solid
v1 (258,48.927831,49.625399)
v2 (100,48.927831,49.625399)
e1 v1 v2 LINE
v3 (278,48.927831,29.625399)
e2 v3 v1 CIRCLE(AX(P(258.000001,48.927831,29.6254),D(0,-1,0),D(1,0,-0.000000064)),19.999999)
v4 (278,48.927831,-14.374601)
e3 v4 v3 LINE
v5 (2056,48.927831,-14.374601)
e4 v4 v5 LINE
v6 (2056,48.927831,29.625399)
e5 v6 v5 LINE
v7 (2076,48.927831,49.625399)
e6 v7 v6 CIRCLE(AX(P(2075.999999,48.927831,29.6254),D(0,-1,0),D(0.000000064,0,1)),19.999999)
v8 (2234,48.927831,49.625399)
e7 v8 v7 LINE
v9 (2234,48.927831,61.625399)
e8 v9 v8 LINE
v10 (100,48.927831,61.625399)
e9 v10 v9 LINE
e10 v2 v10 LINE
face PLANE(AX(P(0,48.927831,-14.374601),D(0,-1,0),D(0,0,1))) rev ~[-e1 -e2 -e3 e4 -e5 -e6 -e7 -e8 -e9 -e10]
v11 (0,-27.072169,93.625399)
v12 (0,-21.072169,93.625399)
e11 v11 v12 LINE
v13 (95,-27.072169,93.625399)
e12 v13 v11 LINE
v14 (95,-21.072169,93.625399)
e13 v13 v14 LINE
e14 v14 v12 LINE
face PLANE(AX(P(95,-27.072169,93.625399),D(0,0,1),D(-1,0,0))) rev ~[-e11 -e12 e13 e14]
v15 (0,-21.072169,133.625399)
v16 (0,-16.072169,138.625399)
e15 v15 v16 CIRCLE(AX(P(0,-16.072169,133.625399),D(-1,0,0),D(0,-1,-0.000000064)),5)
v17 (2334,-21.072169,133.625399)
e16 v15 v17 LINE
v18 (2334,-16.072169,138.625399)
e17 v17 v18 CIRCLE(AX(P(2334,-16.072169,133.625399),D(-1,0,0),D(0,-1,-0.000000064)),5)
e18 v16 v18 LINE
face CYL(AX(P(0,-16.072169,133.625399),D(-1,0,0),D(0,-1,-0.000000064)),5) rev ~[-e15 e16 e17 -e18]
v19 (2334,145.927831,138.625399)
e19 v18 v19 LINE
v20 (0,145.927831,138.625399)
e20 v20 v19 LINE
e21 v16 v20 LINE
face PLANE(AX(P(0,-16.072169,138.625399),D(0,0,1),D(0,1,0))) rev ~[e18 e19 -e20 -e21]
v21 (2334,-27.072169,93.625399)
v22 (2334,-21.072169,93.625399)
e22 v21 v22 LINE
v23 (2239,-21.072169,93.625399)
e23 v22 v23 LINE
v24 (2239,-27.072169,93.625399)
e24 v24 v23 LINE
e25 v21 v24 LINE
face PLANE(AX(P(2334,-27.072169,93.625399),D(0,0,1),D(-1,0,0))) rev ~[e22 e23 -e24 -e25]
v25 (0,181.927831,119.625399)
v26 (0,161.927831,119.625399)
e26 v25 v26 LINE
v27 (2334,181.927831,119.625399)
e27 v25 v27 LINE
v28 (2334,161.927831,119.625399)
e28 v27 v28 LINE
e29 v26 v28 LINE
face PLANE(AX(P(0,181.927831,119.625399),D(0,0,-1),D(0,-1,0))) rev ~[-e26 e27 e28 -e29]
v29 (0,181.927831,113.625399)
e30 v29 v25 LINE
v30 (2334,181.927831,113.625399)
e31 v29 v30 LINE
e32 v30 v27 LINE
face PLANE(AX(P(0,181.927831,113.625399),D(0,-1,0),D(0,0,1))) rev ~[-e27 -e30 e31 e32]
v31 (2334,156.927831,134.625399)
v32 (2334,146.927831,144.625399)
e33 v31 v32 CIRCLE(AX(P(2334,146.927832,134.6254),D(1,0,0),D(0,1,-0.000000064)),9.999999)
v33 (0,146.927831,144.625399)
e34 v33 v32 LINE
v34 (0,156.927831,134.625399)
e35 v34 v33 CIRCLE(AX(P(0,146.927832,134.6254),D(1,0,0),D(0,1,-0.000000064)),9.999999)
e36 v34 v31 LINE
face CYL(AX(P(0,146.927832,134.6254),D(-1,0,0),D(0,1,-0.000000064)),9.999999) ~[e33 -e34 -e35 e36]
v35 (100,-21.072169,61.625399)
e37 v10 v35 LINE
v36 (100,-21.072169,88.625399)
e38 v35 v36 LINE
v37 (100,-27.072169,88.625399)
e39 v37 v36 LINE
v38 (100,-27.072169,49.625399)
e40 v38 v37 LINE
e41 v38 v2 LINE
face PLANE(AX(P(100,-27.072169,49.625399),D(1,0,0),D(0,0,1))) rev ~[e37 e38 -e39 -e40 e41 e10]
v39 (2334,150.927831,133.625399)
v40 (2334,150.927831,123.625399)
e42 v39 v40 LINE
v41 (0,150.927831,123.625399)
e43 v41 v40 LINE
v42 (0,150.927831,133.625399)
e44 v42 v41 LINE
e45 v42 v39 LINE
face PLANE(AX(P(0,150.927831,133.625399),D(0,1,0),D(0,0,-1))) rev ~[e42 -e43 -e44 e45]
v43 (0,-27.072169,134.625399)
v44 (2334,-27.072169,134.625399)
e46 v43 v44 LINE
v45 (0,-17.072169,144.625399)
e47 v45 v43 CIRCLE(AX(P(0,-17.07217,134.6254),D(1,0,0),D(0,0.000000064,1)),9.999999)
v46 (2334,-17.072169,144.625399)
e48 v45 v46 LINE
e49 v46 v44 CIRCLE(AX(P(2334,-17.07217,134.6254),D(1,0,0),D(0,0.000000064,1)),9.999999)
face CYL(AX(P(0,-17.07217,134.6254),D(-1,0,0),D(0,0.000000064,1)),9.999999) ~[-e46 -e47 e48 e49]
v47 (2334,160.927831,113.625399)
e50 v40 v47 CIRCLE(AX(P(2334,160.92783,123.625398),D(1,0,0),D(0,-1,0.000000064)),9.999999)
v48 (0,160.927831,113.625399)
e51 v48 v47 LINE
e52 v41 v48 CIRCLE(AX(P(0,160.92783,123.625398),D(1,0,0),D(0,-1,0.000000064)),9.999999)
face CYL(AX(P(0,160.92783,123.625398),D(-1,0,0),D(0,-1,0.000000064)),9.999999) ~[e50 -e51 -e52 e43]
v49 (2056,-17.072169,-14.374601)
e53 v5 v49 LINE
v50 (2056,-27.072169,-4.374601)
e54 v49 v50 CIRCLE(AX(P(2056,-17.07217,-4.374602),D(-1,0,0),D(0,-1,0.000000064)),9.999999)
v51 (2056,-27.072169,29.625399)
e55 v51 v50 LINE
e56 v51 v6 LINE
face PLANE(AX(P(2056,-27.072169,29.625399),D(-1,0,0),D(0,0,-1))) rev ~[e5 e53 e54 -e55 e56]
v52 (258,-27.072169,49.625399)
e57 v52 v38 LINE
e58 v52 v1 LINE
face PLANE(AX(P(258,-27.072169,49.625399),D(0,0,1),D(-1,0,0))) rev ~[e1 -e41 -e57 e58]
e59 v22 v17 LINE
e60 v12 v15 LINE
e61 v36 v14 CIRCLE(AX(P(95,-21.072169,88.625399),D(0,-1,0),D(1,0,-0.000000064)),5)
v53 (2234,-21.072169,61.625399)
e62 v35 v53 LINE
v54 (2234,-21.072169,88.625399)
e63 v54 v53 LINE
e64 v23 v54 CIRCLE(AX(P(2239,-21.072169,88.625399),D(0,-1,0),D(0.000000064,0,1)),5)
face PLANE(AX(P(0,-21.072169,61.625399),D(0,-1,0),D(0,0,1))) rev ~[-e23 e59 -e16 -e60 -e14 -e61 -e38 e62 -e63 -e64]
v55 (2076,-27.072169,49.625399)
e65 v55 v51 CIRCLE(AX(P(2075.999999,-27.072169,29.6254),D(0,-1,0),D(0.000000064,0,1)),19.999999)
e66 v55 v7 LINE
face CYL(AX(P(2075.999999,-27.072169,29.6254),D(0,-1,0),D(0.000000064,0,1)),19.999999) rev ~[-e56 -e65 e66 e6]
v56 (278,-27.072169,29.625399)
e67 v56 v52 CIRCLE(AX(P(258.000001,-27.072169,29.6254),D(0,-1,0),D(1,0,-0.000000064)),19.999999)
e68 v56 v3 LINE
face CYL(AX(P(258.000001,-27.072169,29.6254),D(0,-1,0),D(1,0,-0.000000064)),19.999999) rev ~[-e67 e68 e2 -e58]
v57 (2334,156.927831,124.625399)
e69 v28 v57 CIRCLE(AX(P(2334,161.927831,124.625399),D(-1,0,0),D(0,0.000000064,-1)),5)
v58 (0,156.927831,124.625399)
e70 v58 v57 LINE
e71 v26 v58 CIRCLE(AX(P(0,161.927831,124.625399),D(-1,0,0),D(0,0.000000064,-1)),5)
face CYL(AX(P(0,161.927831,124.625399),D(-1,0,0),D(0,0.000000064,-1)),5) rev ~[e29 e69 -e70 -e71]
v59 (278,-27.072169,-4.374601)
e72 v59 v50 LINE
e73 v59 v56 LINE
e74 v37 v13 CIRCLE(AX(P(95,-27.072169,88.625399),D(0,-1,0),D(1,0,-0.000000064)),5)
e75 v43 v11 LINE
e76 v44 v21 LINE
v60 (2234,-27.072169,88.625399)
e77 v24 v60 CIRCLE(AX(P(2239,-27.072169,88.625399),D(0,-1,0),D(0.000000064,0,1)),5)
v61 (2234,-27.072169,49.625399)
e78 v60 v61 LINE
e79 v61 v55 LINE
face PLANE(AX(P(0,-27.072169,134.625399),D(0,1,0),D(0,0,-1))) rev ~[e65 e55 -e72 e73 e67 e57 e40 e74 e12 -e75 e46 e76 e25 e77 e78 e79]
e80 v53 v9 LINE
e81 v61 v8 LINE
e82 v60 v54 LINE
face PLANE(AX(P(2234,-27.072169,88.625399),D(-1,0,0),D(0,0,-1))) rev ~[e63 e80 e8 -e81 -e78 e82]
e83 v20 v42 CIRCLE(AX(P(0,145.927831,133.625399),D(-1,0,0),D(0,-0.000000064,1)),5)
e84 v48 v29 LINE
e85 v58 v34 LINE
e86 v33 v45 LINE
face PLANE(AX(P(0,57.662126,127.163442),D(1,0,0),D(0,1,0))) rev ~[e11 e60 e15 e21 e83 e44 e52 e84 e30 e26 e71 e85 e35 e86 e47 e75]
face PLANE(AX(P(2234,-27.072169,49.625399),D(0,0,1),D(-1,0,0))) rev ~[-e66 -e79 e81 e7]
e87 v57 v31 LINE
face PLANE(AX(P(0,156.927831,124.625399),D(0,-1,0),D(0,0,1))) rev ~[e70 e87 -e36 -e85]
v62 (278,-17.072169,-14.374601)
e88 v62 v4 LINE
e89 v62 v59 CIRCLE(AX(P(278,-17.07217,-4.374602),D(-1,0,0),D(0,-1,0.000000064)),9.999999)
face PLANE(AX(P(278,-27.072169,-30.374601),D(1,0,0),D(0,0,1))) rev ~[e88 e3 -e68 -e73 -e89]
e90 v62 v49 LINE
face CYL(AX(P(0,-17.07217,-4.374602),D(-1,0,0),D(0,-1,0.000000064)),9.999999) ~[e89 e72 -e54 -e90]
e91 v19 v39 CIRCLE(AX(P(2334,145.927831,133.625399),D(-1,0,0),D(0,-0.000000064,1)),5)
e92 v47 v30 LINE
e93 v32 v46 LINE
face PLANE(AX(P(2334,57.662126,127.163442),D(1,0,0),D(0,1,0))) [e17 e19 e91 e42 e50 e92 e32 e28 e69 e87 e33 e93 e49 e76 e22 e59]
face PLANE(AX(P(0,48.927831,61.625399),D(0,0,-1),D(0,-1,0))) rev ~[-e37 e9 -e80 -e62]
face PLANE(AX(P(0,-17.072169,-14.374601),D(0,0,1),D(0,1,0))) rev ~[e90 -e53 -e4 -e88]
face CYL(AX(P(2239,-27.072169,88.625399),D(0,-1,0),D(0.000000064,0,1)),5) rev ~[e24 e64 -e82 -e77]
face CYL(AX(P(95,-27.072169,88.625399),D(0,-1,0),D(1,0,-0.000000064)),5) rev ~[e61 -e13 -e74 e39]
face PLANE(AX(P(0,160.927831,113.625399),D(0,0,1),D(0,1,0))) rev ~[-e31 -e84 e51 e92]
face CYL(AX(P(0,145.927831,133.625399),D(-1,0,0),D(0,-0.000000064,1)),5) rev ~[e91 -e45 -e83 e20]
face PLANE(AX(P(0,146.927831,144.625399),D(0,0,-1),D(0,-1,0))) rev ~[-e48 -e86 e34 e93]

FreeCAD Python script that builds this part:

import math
import FreeCAD as App
import Part
import Sketcher

V = App.Vector

doc = App.newDocument("Part")
body = doc.addObject("PartDesign::Body", "Body")

sketch1 = body.newObject("Sketcher::SketchObject", "Sketch")
sketch1.AttachmentSupport = (doc.getObject("YZ_Plane"), [""])
sketch1.MapMode = "FlatFace"
sketch1.addGeometry([
    Part.LineSegment(V(181.927831, 113.625399, 0), V(181.927831, 119.625399, 0)),
    Part.LineSegment(V(181.927831, 119.625399, 0), V(161.927831, 119.625399, 0)),
    Part.ArcOfCircle(Part.Circle(V(161.927831, 124.625399, 0), V(0, 0, 1), 5), math.radians(179.999996), math.radians(270.000004)),
    Part.LineSegment(V(156.927831, 124.625399, 0), V(156.927831, 134.625399, 0)),
    Part.ArcOfCircle(Part.Circle(V(146.927832, 134.6254, 0), V(0, 0, 1), 9.999999), math.radians(-0.000004), math.radians(90.000004)),
    Part.LineSegment(V(146.927831, 144.625399, 0), V(-17.072169, 144.625399, 0)),
    Part.ArcOfCircle(Part.Circle(V(-17.07217, 134.6254, 0), V(0, 0, 1), 9.999999), math.radians(89.999996), math.radians(180.000004)),
    Part.LineSegment(V(-27.072169, 134.625399, 0), V(-27.072169, -4.374601, 0)),
    Part.ArcOfCircle(Part.Circle(V(-17.07217, -4.374602, 0), V(0, 0, 1), 9.999999), math.radians(179.999996), math.radians(270.000004)),
    Part.LineSegment(V(-17.072169, -14.374601, 0), V(48.927831, -14.374601, 0)),
    Part.LineSegment(V(48.927831, -14.374601, 0), V(48.927831, 61.625399, 0)),
    Part.LineSegment(V(48.927831, 61.625399, 0), V(-21.072169, 61.625399, 0)),
    Part.LineSegment(V(-21.072169, 61.625399, 0), V(-21.072169, 133.625399, 0)),
    Part.ArcOfCircle(Part.Circle(V(-16.072169, 133.625399, 0), V(0, 0, 1), 5), math.radians(89.999996), math.radians(180.000004)),
    Part.LineSegment(V(-16.072169, 138.625399, 0), V(145.927831, 138.625399, 0)),
    Part.ArcOfCircle(Part.Circle(V(145.927831, 133.625399, 0), V(0, 0, 1), 5), math.radians(-0.000004), math.radians(90.000004)),
    Part.LineSegment(V(150.927831, 133.625399, 0), V(150.927831, 123.625399, 0)),
    Part.ArcOfCircle(Part.Circle(V(160.92783, 123.625398, 0), V(0, 0, 1), 9.999999), math.radians(179.999996), math.radians(270.000004)),
    Part.LineSegment(V(160.927831, 113.625399, 0), V(181.927831, 113.625399, 0)),
], False)
sketch1.addConstraint([
    Sketcher.Constraint("Coincident", 0, 2, 1, 1),
    Sketcher.Constraint("Tangent", 1, 2, 2, 2),
    Sketcher.Constraint("Tangent", 2, 1, 3, 1),
    Sketcher.Constraint("Tangent", 3, 2, 4, 1),
    Sketcher.Constraint("Tangent", 4, 2, 5, 1),
    Sketcher.Constraint("Tangent", 5, 2, 6, 1),
    Sketcher.Constraint("Tangent", 6, 2, 7, 1),
    Sketcher.Constraint("Tangent", 7, 2, 8, 1),
    Sketcher.Constraint("Tangent", 8, 2, 9, 1),
    Sketcher.Constraint("Coincident", 9, 2, 10, 1),
    Sketcher.Constraint("Coincident", 10, 2, 11, 1),
    Sketcher.Constraint("Coincident", 11, 2, 12, 1),
    Sketcher.Constraint("Tangent", 12, 2, 13, 2),
    Sketcher.Constraint("Tangent", 13, 1, 14, 1),
    Sketcher.Constraint("Tangent", 14, 2, 15, 2),
    Sketcher.Constraint("Tangent", 15, 1, 16, 1),
    Sketcher.Constraint("Tangent", 16, 2, 17, 1),
    Sketcher.Constraint("Tangent", 17, 2, 18, 1),
    Sketcher.Constraint("Coincident", 18, 2, 0, 1),
    Sketcher.Constraint("Vertical", 0),
    Sketcher.Constraint("Horizontal", 1),
    Sketcher.Constraint("Vertical", 3),
    Sketcher.Constraint("Horizontal", 5),
    Sketcher.Constraint("Vertical", 7),
    Sketcher.Constraint("Horizontal", 9),
    Sketcher.Constraint("Vertical", 10),
    Sketcher.Constraint("Horizontal", 11),
    Sketcher.Constraint("Vertical", 12),
    Sketcher.Constraint("Horizontal", 14),
    Sketcher.Constraint("Vertical", 16),
    Sketcher.Constraint("Horizontal", 18),
    Sketcher.Constraint("Equal", 4, 6),
    Sketcher.Constraint("Equal", 6, 8),
    Sketcher.Constraint("Equal", 2, 13),
    Sketcher.Constraint("Equal", 13, 15),
    Sketcher.Constraint("Equal", 8, 17),
    Sketcher.Constraint("Equal", 3, 16),
    Sketcher.Constraint("Radius", 2, 5.0),
    Sketcher.Constraint("Radius", 4, 9.999999),
    Sketcher.Constraint("DistanceX", 1, 2, 1, 1, 20.0),
    Sketcher.Constraint("DistanceX", 5, 2, 5, 1, 164.0),
    Sketcher.Constraint("DistanceX", 9, 1, 9, 2, 66.0),
    Sketcher.Constraint("DistanceX", 11, 2, 11, 1, 70.0),
    Sketcher.Constraint("DistanceX", 14, 1, 14, 2, 162.0),
    Sketcher.Constraint("DistanceY", 0, 1, 0, 2, 6.0),
    Sketcher.Constraint("DistanceY", 3, 1, 3, 2, 10.0),
    Sketcher.Constraint("DistanceY", 7, 2, 7, 1, 139.0),
    Sketcher.Constraint("DistanceY", 10, 1, 10, 2, 76.0),
    Sketcher.Constraint("DistanceY", -1, 1, 2, 3, 124.625399),
    Sketcher.Constraint("DistanceX", -1, 1, 2, 3, 161.927831),
])
pad1 = body.newObject("PartDesign::Pad", "Pad")
pad1.Profile = sketch1
pad1.Length = 2334

sketch2 = body.newObject("Sketcher::SketchObject", "Sketch001")
sketch2.AttachmentSupport = (doc.getObject("XZ_Plane"), [""])
sketch2.MapMode = "FlatFace"
sketch2.AttachmentOffset = App.Placement(V(0, 0, 27.072169), App.Rotation())
sketch2.addGeometry([
    Part.LineSegment(V(0, -30.374601, 0), V(278, -30.374601, 0)),
    Part.LineSegment(V(278, -30.374601, 0), V(278, 29.625399, 0)),
    Part.ArcOfCircle(Part.Circle(V(258.000001, 29.6254, 0), V(0, 0, 1), 19.999999), math.radians(-0.000004), math.radians(90.000004)),
    Part.LineSegment(V(258, 49.625399, 0), V(100, 49.625399, 0)),
    Part.LineSegment(V(100, 49.625399, 0), V(100, 88.625399, 0)),
    Part.ArcOfCircle(Part.Circle(V(95, 88.625399, 0), V(0, 0, 1), 5), math.radians(-0.000004), math.radians(90.000004)),
    Part.LineSegment(V(95, 93.625399, 0), V(0, 93.625399, 0)),
    Part.LineSegment(V(0, 93.625399, 0), V(0, -30.374601, 0)),
], False)
sketch2.addConstraint([
    Sketcher.Constraint("Coincident", 0, 2, 1, 1),
    Sketcher.Constraint("Tangent", 1, 2, 2, 1),
    Sketcher.Constraint("Tangent", 2, 2, 3, 1),
    Sketcher.Constraint("Coincident", 3, 2, 4, 1),
    Sketcher.Constraint("Tangent", 4, 2, 5, 1),
    Sketcher.Constraint("Tangent", 5, 2, 6, 1),
    Sketcher.Constraint("Coincident", 6, 2, 7, 1),
    Sketcher.Constraint("Coincident", 7, 2, 0, 1),
    Sketcher.Constraint("Horizontal", 0),
    Sketcher.Constraint("Vertical", 1),
    Sketcher.Constraint("Horizontal", 3),
    Sketcher.Constraint("Vertical", 4),
    Sketcher.Constraint("Horizontal", 6),
    Sketcher.Constraint("Vertical", 7),
    Sketcher.Constraint("PointOnObject", 6, 2, -2),
    Sketcher.Constraint("Radius", 2, 19.999999),
    Sketcher.Constraint("Radius", 5, 5.0),
    Sketcher.Constraint("DistanceX", 0, 1, 0, 2, 278.0),
    Sketcher.Constraint("DistanceX", 3, 2, 3, 1, 158.0),
    Sketcher.Constraint("DistanceY", 1, 1, 1, 2, 60.0),
    Sketcher.Constraint("DistanceY", 4, 1, 4, 2, 39.0),
    Sketcher.Constraint("DistanceY", -1, 1, 2, 3, 29.6254),
])
pocket1 = body.newObject("PartDesign::Pocket", "Pocket")
pocket1.Profile = sketch2
pocket1.Length = 80

sketch3 = body.newObject("Sketcher::SketchObject", "Sketch002")
sketch3.AttachmentSupport = (doc.getObject("XZ_Plane"), [""])
sketch3.MapMode = "FlatFace"
sketch3.AttachmentOffset = App.Placement(V(0, 0, 27.072169), App.Rotation())
sketch3.addGeometry([
    Part.LineSegment(V(2056, 29.625399, 0), V(2056, -32.294646, 0)),
    Part.LineSegment(V(2056, -32.294646, 0), V(2334, -32.294646, 0)),
    Part.LineSegment(V(2334, -32.294646, 0), V(2334, 93.625399, 0)),
    Part.LineSegment(V(2334, 93.625399, 0), V(2239, 93.625399, 0)),
    Part.ArcOfCircle(Part.Circle(V(2239, 88.625399, 0), V(0, 0, 1), 5), math.radians(89.999996), math.radians(180.000004)),
    Part.LineSegment(V(2234, 88.625399, 0), V(2234, 49.625399, 0)),
    Part.LineSegment(V(2234, 49.625399, 0), V(2076, 49.625399, 0)),
    Part.ArcOfCircle(Part.Circle(V(2075.999999, 29.6254, 0), V(0, 0, 1), 19.999999), math.radians(89.999996), math.radians(180.000004)),
], False)
sketch3.addConstraint([
    Sketcher.Constraint("Coincident", 0, 2, 1, 1),
    Sketcher.Constraint("Coincident", 1, 2, 2, 1),
    Sketcher.Constraint("Coincident", 2, 2, 3, 1),
    Sketcher.Constraint("Tangent", 3, 2, 4, 1),
    Sketcher.Constraint("Tangent", 4, 2, 5, 1),
    Sketcher.Constraint("Coincident", 5, 2, 6, 1),
    Sketcher.Constraint("Tangent", 6, 2, 7, 1),
    Sketcher.Constraint("Tangent", 7, 2, 0, 1),
    Sketcher.Constraint("Vertical", 0),
    Sketcher.Constraint("Horizontal", 1),
    Sketcher.Constraint("Vertical", 2),
    Sketcher.Constraint("Horizontal", 3),
    Sketcher.Constraint("Vertical", 5),
    Sketcher.Constraint("Horizontal", 6),
    Sketcher.Constraint("Radius", 4, 5.0),
    Sketcher.Constraint("Radius", 7, 19.999999),
    Sketcher.Constraint("DistanceX", 1, 1, 1, 2, 278.0),
    Sketcher.Constraint("DistanceX", 3, 2, 3, 1, 95.0),
    Sketcher.Constraint("DistanceY", 5, 2, 5, 1, 39.0),
    Sketcher.Constraint("DistanceX", -1, 1, 4, 3, 2239.0),
    Sketcher.Constraint("DistanceY", -1, 1, 4, 3, 88.625399),
    Sketcher.Constraint("DistanceY", 0, 2, 0, 1, 61.920045),
])
pocket2 = body.newObject("PartDesign::Pocket", "Pocket001")
pocket2.Profile = sketch3
pocket2.Length = 80

doc.recompute()
